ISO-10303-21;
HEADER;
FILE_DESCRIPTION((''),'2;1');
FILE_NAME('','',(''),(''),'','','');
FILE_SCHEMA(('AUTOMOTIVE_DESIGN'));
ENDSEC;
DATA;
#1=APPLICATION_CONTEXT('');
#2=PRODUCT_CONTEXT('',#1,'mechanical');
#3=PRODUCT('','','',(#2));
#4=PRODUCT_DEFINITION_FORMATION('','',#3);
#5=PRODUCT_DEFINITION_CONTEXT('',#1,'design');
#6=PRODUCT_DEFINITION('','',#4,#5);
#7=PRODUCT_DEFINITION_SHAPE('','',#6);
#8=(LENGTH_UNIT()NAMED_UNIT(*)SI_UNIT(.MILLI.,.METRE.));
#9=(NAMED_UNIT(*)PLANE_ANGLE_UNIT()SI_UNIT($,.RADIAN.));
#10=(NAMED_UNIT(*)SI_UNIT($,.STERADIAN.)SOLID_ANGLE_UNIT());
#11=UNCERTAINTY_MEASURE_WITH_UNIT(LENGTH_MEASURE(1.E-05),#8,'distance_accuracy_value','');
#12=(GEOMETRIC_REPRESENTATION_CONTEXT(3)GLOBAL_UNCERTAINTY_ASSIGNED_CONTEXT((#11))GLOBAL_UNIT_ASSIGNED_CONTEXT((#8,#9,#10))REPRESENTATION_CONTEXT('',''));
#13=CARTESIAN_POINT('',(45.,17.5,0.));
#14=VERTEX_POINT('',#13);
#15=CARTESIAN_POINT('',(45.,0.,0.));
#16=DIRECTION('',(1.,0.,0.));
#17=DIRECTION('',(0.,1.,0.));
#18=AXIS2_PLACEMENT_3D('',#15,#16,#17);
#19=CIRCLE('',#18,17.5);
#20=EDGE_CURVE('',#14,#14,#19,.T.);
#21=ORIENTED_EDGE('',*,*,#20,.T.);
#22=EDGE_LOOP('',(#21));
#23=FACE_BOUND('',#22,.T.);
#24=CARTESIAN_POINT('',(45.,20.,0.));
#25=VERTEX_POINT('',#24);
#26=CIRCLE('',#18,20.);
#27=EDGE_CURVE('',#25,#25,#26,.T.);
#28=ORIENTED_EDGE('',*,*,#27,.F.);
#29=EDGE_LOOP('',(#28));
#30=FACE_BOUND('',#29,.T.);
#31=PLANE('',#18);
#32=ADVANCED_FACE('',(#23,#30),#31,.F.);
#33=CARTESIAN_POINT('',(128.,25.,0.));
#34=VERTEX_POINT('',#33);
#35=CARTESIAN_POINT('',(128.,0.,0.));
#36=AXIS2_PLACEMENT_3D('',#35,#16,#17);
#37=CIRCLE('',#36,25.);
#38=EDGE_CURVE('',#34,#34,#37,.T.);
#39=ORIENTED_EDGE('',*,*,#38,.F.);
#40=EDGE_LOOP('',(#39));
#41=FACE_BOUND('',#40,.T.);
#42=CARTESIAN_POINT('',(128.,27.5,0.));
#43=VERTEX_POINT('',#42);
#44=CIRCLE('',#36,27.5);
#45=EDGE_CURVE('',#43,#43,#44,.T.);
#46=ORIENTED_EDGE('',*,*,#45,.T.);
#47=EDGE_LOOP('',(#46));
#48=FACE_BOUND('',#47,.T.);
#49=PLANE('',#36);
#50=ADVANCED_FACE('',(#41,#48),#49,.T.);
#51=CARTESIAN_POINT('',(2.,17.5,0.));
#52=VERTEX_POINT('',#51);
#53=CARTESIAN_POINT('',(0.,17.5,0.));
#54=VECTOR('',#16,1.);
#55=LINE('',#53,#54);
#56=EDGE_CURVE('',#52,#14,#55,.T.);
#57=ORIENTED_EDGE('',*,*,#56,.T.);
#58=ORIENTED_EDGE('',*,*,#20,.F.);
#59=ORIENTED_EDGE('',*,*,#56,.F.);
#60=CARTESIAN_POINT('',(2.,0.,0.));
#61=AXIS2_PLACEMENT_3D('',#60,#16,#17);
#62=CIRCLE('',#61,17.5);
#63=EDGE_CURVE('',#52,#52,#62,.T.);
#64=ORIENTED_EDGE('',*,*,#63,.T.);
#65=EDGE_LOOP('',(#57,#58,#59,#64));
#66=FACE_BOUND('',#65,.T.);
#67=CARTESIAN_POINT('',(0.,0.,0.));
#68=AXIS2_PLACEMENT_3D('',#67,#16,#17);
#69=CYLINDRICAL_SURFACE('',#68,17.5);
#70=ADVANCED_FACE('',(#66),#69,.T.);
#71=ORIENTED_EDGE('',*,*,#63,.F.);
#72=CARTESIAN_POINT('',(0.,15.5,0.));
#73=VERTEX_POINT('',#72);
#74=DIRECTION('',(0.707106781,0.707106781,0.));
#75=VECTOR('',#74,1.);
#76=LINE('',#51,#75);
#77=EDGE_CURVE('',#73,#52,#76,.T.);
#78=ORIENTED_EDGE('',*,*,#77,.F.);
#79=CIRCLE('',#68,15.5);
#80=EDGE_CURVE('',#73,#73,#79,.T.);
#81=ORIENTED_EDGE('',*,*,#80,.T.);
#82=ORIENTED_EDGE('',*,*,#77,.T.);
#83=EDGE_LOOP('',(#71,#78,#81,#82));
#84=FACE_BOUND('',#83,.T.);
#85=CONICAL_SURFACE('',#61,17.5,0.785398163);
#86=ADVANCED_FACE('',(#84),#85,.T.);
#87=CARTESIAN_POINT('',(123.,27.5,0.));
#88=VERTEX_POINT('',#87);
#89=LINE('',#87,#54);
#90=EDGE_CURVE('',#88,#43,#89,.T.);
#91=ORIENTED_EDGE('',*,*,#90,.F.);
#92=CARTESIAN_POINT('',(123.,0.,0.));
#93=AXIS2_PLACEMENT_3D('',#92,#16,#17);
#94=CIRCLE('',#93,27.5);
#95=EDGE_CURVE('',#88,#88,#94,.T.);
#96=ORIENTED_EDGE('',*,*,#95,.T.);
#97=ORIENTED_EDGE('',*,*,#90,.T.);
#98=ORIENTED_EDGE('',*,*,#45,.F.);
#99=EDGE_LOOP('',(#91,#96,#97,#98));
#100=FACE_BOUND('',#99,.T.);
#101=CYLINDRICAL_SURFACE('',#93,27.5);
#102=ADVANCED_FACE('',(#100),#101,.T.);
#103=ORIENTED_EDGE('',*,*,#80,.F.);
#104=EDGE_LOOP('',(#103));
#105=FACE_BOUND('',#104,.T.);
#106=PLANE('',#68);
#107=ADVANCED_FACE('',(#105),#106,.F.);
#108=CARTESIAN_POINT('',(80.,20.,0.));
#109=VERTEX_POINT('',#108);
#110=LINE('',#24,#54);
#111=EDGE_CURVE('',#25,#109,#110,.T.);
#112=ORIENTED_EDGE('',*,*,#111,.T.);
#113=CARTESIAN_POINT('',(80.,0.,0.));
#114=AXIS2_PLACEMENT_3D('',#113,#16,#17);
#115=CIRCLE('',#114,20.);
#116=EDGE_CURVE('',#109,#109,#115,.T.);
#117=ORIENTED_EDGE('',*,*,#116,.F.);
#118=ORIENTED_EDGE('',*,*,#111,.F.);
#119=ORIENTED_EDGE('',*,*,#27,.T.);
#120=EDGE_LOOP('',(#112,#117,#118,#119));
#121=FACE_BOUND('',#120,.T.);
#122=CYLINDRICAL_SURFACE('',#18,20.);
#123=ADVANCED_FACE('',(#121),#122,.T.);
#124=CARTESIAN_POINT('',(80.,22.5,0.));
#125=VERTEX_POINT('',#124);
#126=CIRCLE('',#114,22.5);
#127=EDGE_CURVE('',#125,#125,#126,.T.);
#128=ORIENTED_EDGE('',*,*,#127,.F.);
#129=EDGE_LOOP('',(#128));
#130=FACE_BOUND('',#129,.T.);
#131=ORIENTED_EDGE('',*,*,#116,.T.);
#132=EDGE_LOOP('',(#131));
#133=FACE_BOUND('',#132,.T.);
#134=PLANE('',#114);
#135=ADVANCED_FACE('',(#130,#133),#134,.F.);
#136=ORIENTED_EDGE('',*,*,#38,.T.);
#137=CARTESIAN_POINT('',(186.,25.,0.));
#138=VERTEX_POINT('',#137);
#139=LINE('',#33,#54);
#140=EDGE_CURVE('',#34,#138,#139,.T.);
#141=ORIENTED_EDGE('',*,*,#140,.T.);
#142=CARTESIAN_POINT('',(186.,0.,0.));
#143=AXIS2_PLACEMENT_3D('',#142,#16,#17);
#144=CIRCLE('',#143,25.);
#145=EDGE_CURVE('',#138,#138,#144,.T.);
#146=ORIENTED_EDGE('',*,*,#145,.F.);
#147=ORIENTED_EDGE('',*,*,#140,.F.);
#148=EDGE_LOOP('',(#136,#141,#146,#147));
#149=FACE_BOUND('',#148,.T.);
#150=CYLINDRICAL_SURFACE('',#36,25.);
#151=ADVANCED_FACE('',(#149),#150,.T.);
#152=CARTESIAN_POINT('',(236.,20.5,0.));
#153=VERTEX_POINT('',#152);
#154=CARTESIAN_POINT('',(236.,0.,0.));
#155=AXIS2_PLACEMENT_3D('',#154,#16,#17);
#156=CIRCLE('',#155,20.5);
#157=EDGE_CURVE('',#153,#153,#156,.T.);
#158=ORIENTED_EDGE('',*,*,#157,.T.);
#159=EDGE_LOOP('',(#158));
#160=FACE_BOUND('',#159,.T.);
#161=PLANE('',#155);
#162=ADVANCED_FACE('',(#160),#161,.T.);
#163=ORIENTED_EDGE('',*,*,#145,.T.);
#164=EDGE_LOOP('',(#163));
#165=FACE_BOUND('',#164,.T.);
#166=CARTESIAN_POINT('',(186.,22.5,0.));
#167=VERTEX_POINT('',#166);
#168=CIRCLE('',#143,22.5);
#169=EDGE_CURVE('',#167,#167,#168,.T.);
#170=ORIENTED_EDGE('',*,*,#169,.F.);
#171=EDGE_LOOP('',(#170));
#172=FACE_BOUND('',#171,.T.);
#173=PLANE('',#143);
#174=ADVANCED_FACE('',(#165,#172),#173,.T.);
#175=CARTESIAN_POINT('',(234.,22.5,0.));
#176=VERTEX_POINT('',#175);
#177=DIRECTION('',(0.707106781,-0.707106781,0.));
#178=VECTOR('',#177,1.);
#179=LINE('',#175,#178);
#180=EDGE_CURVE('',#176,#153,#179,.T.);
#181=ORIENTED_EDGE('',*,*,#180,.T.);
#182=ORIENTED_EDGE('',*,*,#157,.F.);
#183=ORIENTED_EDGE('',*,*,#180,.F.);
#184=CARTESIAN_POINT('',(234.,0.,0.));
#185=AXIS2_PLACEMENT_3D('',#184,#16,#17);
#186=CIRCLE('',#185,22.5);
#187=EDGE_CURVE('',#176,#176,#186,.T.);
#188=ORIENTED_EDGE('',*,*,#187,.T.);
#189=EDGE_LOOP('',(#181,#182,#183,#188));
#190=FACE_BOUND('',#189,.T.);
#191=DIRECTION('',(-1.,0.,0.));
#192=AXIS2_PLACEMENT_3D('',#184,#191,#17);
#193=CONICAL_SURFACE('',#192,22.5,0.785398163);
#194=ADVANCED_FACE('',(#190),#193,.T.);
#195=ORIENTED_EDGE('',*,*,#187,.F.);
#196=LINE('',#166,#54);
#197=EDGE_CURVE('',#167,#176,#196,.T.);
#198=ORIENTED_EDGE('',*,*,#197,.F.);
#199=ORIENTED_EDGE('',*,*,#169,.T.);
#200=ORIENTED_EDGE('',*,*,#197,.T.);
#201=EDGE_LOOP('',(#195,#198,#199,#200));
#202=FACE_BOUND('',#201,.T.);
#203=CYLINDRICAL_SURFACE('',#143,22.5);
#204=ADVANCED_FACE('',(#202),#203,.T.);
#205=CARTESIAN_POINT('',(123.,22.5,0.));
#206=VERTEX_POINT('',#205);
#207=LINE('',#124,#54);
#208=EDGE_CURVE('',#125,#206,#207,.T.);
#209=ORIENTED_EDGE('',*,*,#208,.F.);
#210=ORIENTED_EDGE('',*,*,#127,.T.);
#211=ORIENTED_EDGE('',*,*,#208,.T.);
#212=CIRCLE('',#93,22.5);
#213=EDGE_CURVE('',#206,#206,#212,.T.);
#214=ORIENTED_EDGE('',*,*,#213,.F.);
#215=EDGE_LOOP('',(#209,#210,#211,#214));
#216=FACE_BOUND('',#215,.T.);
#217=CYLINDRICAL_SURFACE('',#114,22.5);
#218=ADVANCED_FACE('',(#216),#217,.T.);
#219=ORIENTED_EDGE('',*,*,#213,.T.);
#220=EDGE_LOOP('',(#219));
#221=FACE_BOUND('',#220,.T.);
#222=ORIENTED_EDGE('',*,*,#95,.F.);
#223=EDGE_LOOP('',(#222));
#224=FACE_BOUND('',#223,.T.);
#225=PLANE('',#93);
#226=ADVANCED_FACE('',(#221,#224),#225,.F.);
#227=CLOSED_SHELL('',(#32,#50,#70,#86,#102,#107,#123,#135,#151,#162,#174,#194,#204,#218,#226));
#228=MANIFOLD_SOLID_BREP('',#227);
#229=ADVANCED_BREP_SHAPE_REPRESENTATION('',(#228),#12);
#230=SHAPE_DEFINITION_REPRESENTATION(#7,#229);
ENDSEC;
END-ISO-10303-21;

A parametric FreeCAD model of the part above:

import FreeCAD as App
import Part
import Sketcher

V = App.Vector


def edges_at(feature, points):
    """Names of the edges that pass closest to the given points."""
    edges = feature.Shape.Edges
    near = lambda p: min(range(len(edges)), key=lambda i: edges[i].distToShape(Part.Vertex(*p))[0])
    return sorted({f"Edge{near(p) + 1}" for p in points})

doc = App.newDocument("Part")
body = doc.addObject("PartDesign::Body", "Body")

sketch1 = doc.addObject("Sketcher::SketchObject", "Sketch")
body.addObject(sketch1)
sketch1.AttachmentSupport = (doc.XY_Plane, [""])
sketch1.MapMode = "FlatFace"
sketch1.addGeometry(Part.LineSegment(V(0, 17.5, 0), V(0, 0, 0)), False)
sketch1.addGeometry(Part.LineSegment(V(0, 0, 0), V(236, 0, 0)), False)
sketch1.addGeometry(Part.LineSegment(V(236, 0, 0), V(236, 22.5, 0)), False)
sketch1.addGeometry(Part.LineSegment(V(236, 22.5, 0), V(186, 22.5, 0)), False)
sketch1.addGeometry(Part.LineSegment(V(186, 22.5, 0), V(186, 25, 0)), False)
sketch1.addGeometry(Part.LineSegment(V(186, 25, 0), V(128, 25, 0)), False)
sketch1.addGeometry(Part.LineSegment(V(128, 25, 0), V(128, 27.5, 0)), False)
sketch1.addGeometry(Part.LineSegment(V(128, 27.5, 0), V(123, 27.5, 0)), False)
sketch1.addGeometry(Part.LineSegment(V(123, 27.5, 0), V(123, 22.5, 0)), False)
sketch1.addGeometry(Part.LineSegment(V(123, 22.5, 0), V(80, 22.5, 0)), False)
sketch1.addGeometry(Part.LineSegment(V(80, 22.5, 0), V(80, 20, 0)), False)
sketch1.addGeometry(Part.LineSegment(V(80, 20, 0), V(45, 20, 0)), False)
sketch1.addGeometry(Part.LineSegment(V(45, 20, 0), V(45, 17.5, 0)), False)
sketch1.addGeometry(Part.LineSegment(V(45, 17.5, 0), V(0, 17.5, 0)), False)
sketch1.addConstraint(Sketcher.Constraint("Coincident", 0, 2, 1, 1))
sketch1.addConstraint(Sketcher.Constraint("Coincident", 1, 2, 2, 1))
sketch1.addConstraint(Sketcher.Constraint("Coincident", 2, 2, 3, 1))
sketch1.addConstraint(Sketcher.Constraint("Coincident", 3, 2, 4, 1))
sketch1.addConstraint(Sketcher.Constraint("Coincident", 4, 2, 5, 1))
sketch1.addConstraint(Sketcher.Constraint("Coincident", 5, 2, 6, 1))
sketch1.addConstraint(Sketcher.Constraint("Coincident", 6, 2, 7, 1))
sketch1.addConstraint(Sketcher.Constraint("Coincident", 7, 2, 8, 1))
sketch1.addConstraint(Sketcher.Constraint("Coincident", 8, 2, 9, 1))
sketch1.addConstraint(Sketcher.Constraint("Coincident", 9, 2, 10, 1))
sketch1.addConstraint(Sketcher.Constraint("Coincident", 10, 2, 11, 1))
sketch1.addConstraint(Sketcher.Constraint("Coincident", 11, 2, 12, 1))
sketch1.addConstraint(Sketcher.Constraint("Coincident", 12, 2, 13, 1))
sketch1.addConstraint(Sketcher.Constraint("Coincident", 13, 2, 0, 1))
sketch1.addConstraint(Sketcher.Constraint("Vertical", 0))
sketch1.addConstraint(Sketcher.Constraint("Horizontal", 1))
sketch1.addConstraint(Sketcher.Constraint("Vertical", 2))
sketch1.addConstraint(Sketcher.Constraint("Horizontal", 3))
sketch1.addConstraint(Sketcher.Constraint("Vertical", 4))
sketch1.addConstraint(Sketcher.Constraint("Horizontal", 5))
sketch1.addConstraint(Sketcher.Constraint("Vertical", 6))
sketch1.addConstraint(Sketcher.Constraint("Horizontal", 7))
sketch1.addConstraint(Sketcher.Constraint("Vertical", 8))
sketch1.addConstraint(Sketcher.Constraint("Horizontal", 9))
sketch1.addConstraint(Sketcher.Constraint("Vertical", 10))
sketch1.addConstraint(Sketcher.Constraint("Horizontal", 11))
sketch1.addConstraint(Sketcher.Constraint("Vertical", 12))
sketch1.addConstraint(Sketcher.Constraint("Horizontal", 13))
sketch1.addConstraint(Sketcher.Constraint("Coincident", 0, 2, -1, 1))
sketch1.addConstraint(Sketcher.Constraint("Horizontal", 3, 2, 8, 2))
sketch1.addConstraint(Sketcher.Constraint("Equal", 4, 6))
sketch1.addConstraint(Sketcher.Constraint("Equal", 7, 8))
sketch1.addConstraint(Sketcher.Constraint("Equal", 6, 10))
sketch1.addConstraint(Sketcher.Constraint("Equal", 10, 12))
sketch1.addConstraint(Sketcher.Constraint("DistanceX", 3, 2, 3, 1, 50.0))
sketch1.addConstraint(Sketcher.Constraint("DistanceX", 11, 2, 11, 1, 35.0))
sketch1.addConstraint(Sketcher.Constraint("DistanceX", 13, 2, 13, 1, 45.0))
sketch1.addConstraint(Sketcher.Constraint("DistanceX", 1, 1, 1, 2, 236.0))
sketch1.addConstraint(Sketcher.Constraint("DistanceX", 5, 2, 5, 1, 58.0))
sketch1.addConstraint(Sketcher.Constraint("DistanceX", 7, 2, 7, 1, 5.0))
sketch1.addConstraint(Sketcher.Constraint("DistanceY", 0, 2, 0, 1, 17.5))
revolution = doc.addObject("PartDesign::Revolution", "Revolution")
body.addObject(revolution)
revolution.Profile = sketch1
revolution.ReferenceAxis = (sketch1, ["H_Axis"])
revolution.Angle = 360
doc.recompute()

chamfer = doc.addObject("PartDesign::Chamfer", "Chamfer")
body.addObject(chamfer)
chamfer.Base = (revolution, edges_at(revolution, [(0, -17.5, 0)]))
chamfer.Size = 2
doc.recompute()

chamfer2 = doc.addObject("PartDesign::Chamfer", "Chamfer001")
body.addObject(chamfer2)
chamfer2.Base = (chamfer, edges_at(chamfer, [(236, -22.5, 0)]))
chamfer2.Size = 2

doc.recompute()
